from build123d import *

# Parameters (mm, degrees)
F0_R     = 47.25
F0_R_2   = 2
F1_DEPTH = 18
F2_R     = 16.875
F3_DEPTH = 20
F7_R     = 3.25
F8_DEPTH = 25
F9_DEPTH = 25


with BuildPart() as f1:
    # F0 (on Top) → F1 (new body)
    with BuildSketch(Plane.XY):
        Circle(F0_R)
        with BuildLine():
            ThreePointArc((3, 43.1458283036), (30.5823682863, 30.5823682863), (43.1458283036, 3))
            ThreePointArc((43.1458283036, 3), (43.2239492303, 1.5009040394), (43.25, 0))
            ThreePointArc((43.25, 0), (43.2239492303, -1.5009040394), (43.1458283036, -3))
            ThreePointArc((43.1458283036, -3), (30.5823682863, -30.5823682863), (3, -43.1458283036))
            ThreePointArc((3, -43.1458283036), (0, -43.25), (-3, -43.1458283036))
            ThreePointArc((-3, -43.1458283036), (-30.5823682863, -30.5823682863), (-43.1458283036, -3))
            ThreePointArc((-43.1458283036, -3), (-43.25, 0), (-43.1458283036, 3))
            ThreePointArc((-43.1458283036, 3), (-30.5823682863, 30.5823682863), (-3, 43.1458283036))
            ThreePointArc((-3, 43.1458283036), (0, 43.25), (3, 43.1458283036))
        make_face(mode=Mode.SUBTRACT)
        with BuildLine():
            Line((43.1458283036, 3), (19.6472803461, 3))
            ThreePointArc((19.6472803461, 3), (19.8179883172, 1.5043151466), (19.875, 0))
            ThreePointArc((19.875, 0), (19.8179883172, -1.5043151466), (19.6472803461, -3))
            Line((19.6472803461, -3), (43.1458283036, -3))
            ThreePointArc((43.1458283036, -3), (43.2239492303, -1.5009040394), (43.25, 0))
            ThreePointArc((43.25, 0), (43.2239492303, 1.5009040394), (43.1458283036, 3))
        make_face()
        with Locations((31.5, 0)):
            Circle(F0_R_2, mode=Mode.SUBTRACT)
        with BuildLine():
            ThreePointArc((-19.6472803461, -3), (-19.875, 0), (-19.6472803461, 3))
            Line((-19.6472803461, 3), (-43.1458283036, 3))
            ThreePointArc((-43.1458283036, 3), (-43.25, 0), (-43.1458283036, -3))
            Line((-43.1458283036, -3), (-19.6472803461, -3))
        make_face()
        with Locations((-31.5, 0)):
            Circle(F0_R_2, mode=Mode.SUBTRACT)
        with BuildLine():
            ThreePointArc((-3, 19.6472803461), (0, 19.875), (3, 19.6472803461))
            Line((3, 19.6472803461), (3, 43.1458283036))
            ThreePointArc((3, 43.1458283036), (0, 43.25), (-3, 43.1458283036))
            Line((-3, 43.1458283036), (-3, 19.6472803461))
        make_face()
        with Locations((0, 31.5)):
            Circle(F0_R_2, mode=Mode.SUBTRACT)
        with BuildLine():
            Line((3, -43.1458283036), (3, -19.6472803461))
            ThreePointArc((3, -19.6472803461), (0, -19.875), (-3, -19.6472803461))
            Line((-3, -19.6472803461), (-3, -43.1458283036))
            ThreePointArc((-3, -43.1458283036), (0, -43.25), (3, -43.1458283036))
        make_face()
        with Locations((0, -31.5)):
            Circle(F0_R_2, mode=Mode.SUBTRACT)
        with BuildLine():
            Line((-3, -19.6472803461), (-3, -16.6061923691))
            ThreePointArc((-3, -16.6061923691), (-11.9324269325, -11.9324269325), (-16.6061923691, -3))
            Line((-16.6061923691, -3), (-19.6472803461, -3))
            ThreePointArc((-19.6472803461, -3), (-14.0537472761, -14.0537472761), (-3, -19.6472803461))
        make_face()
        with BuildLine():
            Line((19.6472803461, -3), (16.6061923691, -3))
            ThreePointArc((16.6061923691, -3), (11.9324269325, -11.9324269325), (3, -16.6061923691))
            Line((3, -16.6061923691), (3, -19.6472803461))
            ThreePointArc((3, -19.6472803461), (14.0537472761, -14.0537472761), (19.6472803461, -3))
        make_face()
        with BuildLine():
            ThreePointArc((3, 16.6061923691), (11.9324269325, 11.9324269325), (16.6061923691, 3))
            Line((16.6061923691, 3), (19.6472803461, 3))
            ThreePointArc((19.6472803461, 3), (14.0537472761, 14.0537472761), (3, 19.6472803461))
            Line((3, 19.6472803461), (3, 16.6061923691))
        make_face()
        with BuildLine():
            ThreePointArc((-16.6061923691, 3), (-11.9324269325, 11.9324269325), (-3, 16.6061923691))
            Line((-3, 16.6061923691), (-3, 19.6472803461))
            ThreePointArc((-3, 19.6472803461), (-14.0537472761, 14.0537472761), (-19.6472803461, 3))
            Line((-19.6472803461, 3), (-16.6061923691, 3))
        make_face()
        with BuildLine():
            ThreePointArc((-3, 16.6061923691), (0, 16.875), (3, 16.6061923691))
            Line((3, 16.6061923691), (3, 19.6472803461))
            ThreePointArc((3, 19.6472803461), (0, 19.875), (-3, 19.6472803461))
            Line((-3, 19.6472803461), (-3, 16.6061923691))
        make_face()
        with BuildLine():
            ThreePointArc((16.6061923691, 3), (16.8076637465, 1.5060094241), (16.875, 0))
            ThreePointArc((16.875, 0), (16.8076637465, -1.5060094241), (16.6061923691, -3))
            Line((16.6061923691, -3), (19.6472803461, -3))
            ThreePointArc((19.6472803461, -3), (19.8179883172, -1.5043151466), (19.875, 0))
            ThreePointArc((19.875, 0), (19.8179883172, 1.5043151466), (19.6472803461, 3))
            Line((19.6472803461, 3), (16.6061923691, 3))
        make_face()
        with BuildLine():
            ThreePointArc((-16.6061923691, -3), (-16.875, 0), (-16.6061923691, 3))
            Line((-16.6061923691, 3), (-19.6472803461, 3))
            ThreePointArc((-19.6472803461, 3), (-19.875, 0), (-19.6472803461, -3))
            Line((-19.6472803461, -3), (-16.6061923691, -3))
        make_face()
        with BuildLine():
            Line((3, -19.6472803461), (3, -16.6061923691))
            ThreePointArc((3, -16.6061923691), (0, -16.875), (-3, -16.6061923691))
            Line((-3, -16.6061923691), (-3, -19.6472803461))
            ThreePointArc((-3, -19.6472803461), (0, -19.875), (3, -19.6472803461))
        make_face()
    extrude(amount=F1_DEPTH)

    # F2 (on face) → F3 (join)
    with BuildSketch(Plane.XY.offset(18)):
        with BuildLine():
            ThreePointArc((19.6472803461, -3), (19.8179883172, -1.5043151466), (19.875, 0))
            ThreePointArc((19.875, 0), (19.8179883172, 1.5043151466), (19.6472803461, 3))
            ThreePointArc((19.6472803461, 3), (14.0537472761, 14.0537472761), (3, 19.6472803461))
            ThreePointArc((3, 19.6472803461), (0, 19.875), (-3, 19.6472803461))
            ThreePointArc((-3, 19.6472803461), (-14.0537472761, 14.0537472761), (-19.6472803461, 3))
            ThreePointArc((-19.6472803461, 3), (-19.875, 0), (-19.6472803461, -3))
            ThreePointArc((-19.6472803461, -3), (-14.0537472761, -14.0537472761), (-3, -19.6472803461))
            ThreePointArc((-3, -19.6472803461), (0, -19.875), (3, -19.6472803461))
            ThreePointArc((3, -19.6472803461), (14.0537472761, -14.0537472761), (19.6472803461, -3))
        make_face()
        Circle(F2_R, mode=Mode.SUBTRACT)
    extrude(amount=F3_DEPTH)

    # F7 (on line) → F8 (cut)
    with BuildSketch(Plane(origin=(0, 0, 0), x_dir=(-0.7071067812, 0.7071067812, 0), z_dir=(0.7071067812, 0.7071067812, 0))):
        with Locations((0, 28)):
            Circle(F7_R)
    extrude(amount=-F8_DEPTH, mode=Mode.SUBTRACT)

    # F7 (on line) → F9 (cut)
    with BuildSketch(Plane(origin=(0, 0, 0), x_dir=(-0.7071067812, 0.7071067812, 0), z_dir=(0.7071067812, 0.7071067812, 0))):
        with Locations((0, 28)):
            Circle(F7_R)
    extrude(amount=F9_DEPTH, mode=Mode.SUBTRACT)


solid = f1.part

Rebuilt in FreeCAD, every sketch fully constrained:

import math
import FreeCAD as App
import Part
import Sketcher
from FreeCAD import Vector

doc = App.newDocument("Part")
body = doc.addObject("PartDesign::Body", "Body")

# Sketch on XY plane
sketch1 = doc.addObject("Sketcher::SketchObject", "Sketch")
body.addObject(sketch1)
sketch1.AttachmentSupport = (doc.XY_Plane, [""])
sketch1.MapMode = "FlatFace"
sketch1.addGeometry(Part.Circle(Vector(0, 0, 0), Vector(0, 0, 1), 47.2), False)
sketch1.addGeometry(Part.ArcOfCircle(Part.Circle(Vector(0, 0, 0), Vector(0, 0, 1), 19.9), math.radians(-171), math.radians(-99)), False)
sketch1.addGeometry(Part.LineSegment(Vector(-3, -19.6, 0), Vector(-3, -43.1, 0)), False)
sketch1.addGeometry(Part.ArcOfCircle(Part.Circle(Vector(0, 0, 0), Vector(0, 0, 1), 43.2), math.radians(-176), math.radians(-94)), False)
sketch1.addGeometry(Part.LineSegment(Vector(-43.1, -3, 0), Vector(-19.6, -3, 0)), False)
sketch1.addGeometry(Part.Circle(Vector(0, -31.5, 0), Vector(0, 0, 1), 2), False)
sketch1.addGeometry(Part.LineSegment(Vector(3, -43.1, 0), Vector(3, -19.6, 0)), False)
sketch1.addGeometry(Part.ArcOfCircle(Part.Circle(Vector(0, 0, 0), Vector(0, 0, 1), 19.9), math.radians(-81), math.radians(-9)), False)
sketch1.addGeometry(Part.LineSegment(Vector(19.6, -3, 0), Vector(43.1, -3, 0)), False)
sketch1.addGeometry(Part.ArcOfCircle(Part.Circle(Vector(0, 0, 0), Vector(0, 0, 1), 43.2), math.radians(-86), math.radians(-4)), False)
sketch1.addGeometry(Part.ArcOfCircle(Part.Circle(Vector(0, 0, 0), Vector(0, 0, 1), 16.9), math.radians(-80), math.radians(-10)), False)
sketch1.addGeometry(Part.ArcOfCircle(Part.Circle(Vector(0, 0, 0), Vector(0, 0, 1), 16.9), math.radians(-100), math.radians(-80)), False)
sketch1.addGeometry(Part.ArcOfCircle(Part.Circle(Vector(0, 0, 0), Vector(0, 0, 1), 16.9), math.radians(-170), math.radians(-100)), False)
sketch1.addGeometry(Part.ArcOfCircle(Part.Circle(Vector(0, 0, 0), Vector(0, 0, 1), 16.9), math.radians(170), math.radians(190)), False)
sketch1.addGeometry(Part.ArcOfCircle(Part.Circle(Vector(0, 0, 0), Vector(0, 0, 1), 16.9), math.radians(100), math.radians(170)), False)
sketch1.addGeometry(Part.ArcOfCircle(Part.Circle(Vector(0, 0, 0), Vector(0, 0, 1), 16.9), math.radians(80), math.radians(100)), False)
sketch1.addGeometry(Part.ArcOfCircle(Part.Circle(Vector(0, 0, 0), Vector(0, 0, 1), 16.9), math.radians(10), math.radians(80)), False)
sketch1.addGeometry(Part.ArcOfCircle(Part.Circle(Vector(0, 0, 0), Vector(0, 0, 1), 16.9), math.radians(0), math.radians(10.24)), False)
sketch1.addGeometry(Part.ArcOfCircle(Part.Circle(Vector(0, 0, 0), Vector(0, 0, 1), 16.9), math.radians(-10.24), math.radians(0)), False)
sketch1.addGeometry(Part.Circle(Vector(-31.5, 0, 0), Vector(0, 0, 1), 2), False)
sketch1.addGeometry(Part.ArcOfCircle(Part.Circle(Vector(0, 0, 0), Vector(0, 0, 1), 19.9), math.radians(99), math.radians(171)), False)
sketch1.addGeometry(Part.LineSegment(Vector(-19.6, 3, 0), Vector(-43.1, 3, 0)), False)
sketch1.addGeometry(Part.ArcOfCircle(Part.Circle(Vector(0, 0, 0), Vector(0, 0, 1), 43.2), math.radians(94), math.radians(176)), False)
sketch1.addGeometry(Part.LineSegment(Vector(-3, 43.1, 0), Vector(-3, 19.6, 0)), False)
sketch1.addGeometry(Part.Circle(Vector(31.5, 0, 0), Vector(0, 0, 1), 2), False)
sketch1.addGeometry(Part.Circle(Vector(0, 31.5, 0), Vector(0, 0, 1), 2), False)
sketch1.addGeometry(Part.LineSegment(Vector(43.1, 3, 0), Vector(19.6, 3, 0)), False)
sketch1.addGeometry(Part.ArcOfCircle(Part.Circle(Vector(0, 0, 0), Vector(0, 0, 1), 19.9), math.radians(9), math.radians(81)), False)
sketch1.addGeometry(Part.LineSegment(Vector(3, 19.6, 0), Vector(3, 43.1, 0)), False)
sketch1.addGeometry(Part.ArcOfCircle(Part.Circle(Vector(0, 0, 0), Vector(0, 0, 1), 43.2), math.radians(4), math.radians(86)), False)
sketch1.addConstraint(Sketcher.Constraint("Coincident", 1, 2, 2, 1))
sketch1.addConstraint(Sketcher.Constraint("Coincident", 2, 2, 3, 2))
sketch1.addConstraint(Sketcher.Constraint("Coincident", 3, 1, 4, 1))
sketch1.addConstraint(Sketcher.Constraint("Coincident", 4, 2, 1, 1))
sketch1.addConstraint(Sketcher.Constraint("Coincident", 6, 2, 7, 1))
sketch1.addConstraint(Sketcher.Constraint("Coincident", 7, 2, 8, 1))
sketch1.addConstraint(Sketcher.Constraint("Coincident", 8, 2, 9, 2))
sketch1.addConstraint(Sketcher.Constraint("Coincident", 9, 1, 6, 1))
sketch1.addConstraint(Sketcher.Constraint("Tangent", 10, 1, 11, 2))
sketch1.addConstraint(Sketcher.Constraint("Tangent", 11, 1, 12, 2))
sketch1.addConstraint(Sketcher.Constraint("Tangent", 12, 1, 13, 2))
sketch1.addConstraint(Sketcher.Constraint("Tangent", 13, 1, 14, 2))
sketch1.addConstraint(Sketcher.Constraint("Tangent", 14, 1, 15, 2))
sketch1.addConstraint(Sketcher.Constraint("Tangent", 15, 1, 16, 2))
sketch1.addConstraint(Sketcher.Constraint("Tangent", 16, 1, 17, 2))
sketch1.addConstraint(Sketcher.Constraint("Tangent", 17, 1, 18, 2))
sketch1.addConstraint(Sketcher.Constraint("Tangent", 18, 1, 10, 2))
sketch1.addConstraint(Sketcher.Constraint("Coincident", 20, 2, 21, 1))
sketch1.addConstraint(Sketcher.Constraint("Coincident", 21, 2, 22, 2))
sketch1.addConstraint(Sketcher.Constraint("Coincident", 22, 1, 23, 1))
sketch1.addConstraint(Sketcher.Constraint("Coincident", 23, 2, 20, 1))
sketch1.addConstraint(Sketcher.Constraint("Coincident", 26, 2, 27, 1))
sketch1.addConstraint(Sketcher.Constraint("Coincident", 27, 2, 28, 1))
sketch1.addConstraint(Sketcher.Constraint("Coincident", 28, 2, 29, 2))
sketch1.addConstraint(Sketcher.Constraint("Coincident", 29, 1, 26, 1))
sketch1.addConstraint(Sketcher.Constraint("Vertical", 2))
sketch1.addConstraint(Sketcher.Constraint("Horizontal", 4))
sketch1.addConstraint(Sketcher.Constraint("Vertical", 6))
sketch1.addConstraint(Sketcher.Constraint("Horizontal", 8))
sketch1.addConstraint(Sketcher.Constraint("Horizontal", 21))
sketch1.addConstraint(Sketcher.Constraint("Vertical", 23))
sketch1.addConstraint(Sketcher.Constraint("Horizontal", 26))
sketch1.addConstraint(Sketcher.Constraint("Vertical", 28))
sketch1.addConstraint(Sketcher.Constraint("Coincident", 0, 3, -1, 1))
sketch1.addConstraint(Sketcher.Constraint("Coincident", 1, 3, -1, 1))
sketch1.addConstraint(Sketcher.Constraint("Coincident", 3, 3, -1, 1))
sketch1.addConstraint(Sketcher.Constraint("Coincident", 7, 3, -1, 1))
sketch1.addConstraint(Sketcher.Constraint("Coincident", 9, 3, -1, 1))
sketch1.addConstraint(Sketcher.Constraint("Coincident", 10, 3, -1, 1))
sketch1.addConstraint(Sketcher.Constraint("Coincident", 12, 3, -1, 1))
sketch1.addConstraint(Sketcher.Constraint("Coincident", 14, 3, -1, 1))
sketch1.addConstraint(Sketcher.Constraint("Coincident", 16, 3, -1, 1))
sketch1.addConstraint(Sketcher.Constraint("Coincident", 20, 3, -1, 1))
sketch1.addConstraint(Sketcher.Constraint("Coincident", 22, 3, -1, 1))
sketch1.addConstraint(Sketcher.Constraint("Coincident", 27, 3, -1, 1))
sketch1.addConstraint(Sketcher.Constraint("Coincident", 29, 3, -1, 1))
sketch1.addConstraint(Sketcher.Constraint("Equal", 1, 7))
sketch1.addConstraint(Sketcher.Constraint("Equal", 3, 9))
sketch1.addConstraint(Sketcher.Constraint("Equal", 5, 19))
sketch1.addConstraint(Sketcher.Constraint("Equal", 7, 20))
sketch1.addConstraint(Sketcher.Constraint("Equal", 9, 22))
sketch1.addConstraint(Sketcher.Constraint("Equal", 19, 24))
sketch1.addConstraint(Sketcher.Constraint("Equal", 24, 25))
sketch1.addConstraint(Sketcher.Constraint("Equal", 20, 27))
sketch1.addConstraint(Sketcher.Constraint("Equal", 22, 29))
sketch1.addConstraint(Sketcher.Constraint("Symmetric", 19, 3, 24, 3, -1, 1))
sketch1.addConstraint(Sketcher.Constraint("Symmetric", 5, 3, 25, 3, -1, 1))
sketch1.addConstraint(Sketcher.Constraint("PointOnObject", 5, 3, -2))
sketch1.addConstraint(Sketcher.Constraint("PointOnObject", 19, 3, -1))
sketch1.addConstraint(Sketcher.Constraint("PointOnObject", 17, 1, -1))
sketch1.addConstraint(Sketcher.Constraint("Horizontal", 1, 2, 6, 2))
sketch1.addConstraint(Sketcher.Constraint("Horizontal", 4, 2, 7, 2))
sketch1.addConstraint(Sketcher.Constraint("Horizontal", 10, 1, 11, 1))
sketch1.addConstraint(Sketcher.Constraint("Horizontal", 8, 2, 12, 1))
sketch1.addConstraint(Sketcher.Constraint("Horizontal", 14, 1, 15, 1))
sketch1.addConstraint(Sketcher.Constraint("Horizontal", 13, 1, 16, 1))
sketch1.addConstraint(Sketcher.Constraint("Horizontal", 12, 1, 18, 1))
sketch1.addConstraint(Sketcher.Constraint("Horizontal", 16, 1, 20, 2))
sketch1.addConstraint(Sketcher.Constraint("Horizontal", 21, 2, 26, 2))
sketch1.addConstraint(Sketcher.Constraint("Horizontal", 23, 2, 27, 2))
sketch1.addConstraint(Sketcher.Constraint("Vertical", 9, 1, 10, 1))
sketch1.addConstraint(Sketcher.Constraint("Vertical", 12, 1, 13, 1))
sketch1.addConstraint(Sketcher.Constraint("Vertical", 11, 1, 14, 1))
sketch1.addConstraint(Sketcher.Constraint("Vertical", 14, 1, 22, 1))
sketch1.addConstraint(Sketcher.Constraint("Equal", 26, 2))
sketch1.addConstraint(Sketcher.Constraint("Diameter", 5, 4.0))
sketch1.addConstraint(Sketcher.Constraint("Diameter", 0, 94.5))
sketch1.addConstraint(Sketcher.Constraint("Radius", 3, 43.25))
sketch1.addConstraint(Sketcher.Constraint("DistanceX", 1, 2, -1, 1, 3.0))
sketch1.addConstraint(Sketcher.Constraint("Radius", 1, 19.875))
sketch1.addConstraint(Sketcher.Constraint("Radius", 10, 16.875))
sketch1.addConstraint(Sketcher.Constraint("DistanceY", 5, 3, -1, 1, 31.5))
sketch1.addConstraint(Sketcher.Constraint("DistanceX", 19, 3, -1, 1, 31.5))
pad1 = doc.addObject("PartDesign::Pad", "Pad")
body.addObject(pad1)
pad1.Profile = sketch1
pad1.Length = 18

# Sketch on XY plane
sketch2 = doc.addObject("Sketcher::SketchObject", "Sketch001")
body.addObject(sketch2)
sketch2.AttachmentSupport = (doc.XY_Plane, [""])
sketch2.MapMode = "FlatFace"
sketch2.AttachmentOffset = App.Placement(Vector(0, 0, 18), App.Rotation())
sketch2.addGeometry(Part.ArcOfCircle(Part.Circle(Vector(0, 0, 0), Vector(0, 0, 1), 19.9), math.radians(-8.68), math.radians(0)), False)
sketch2.addGeometry(Part.ArcOfCircle(Part.Circle(Vector(0, 0, 0), Vector(0, 0, 1), 19.9), math.radians(0), math.radians(8.68)), False)
sketch2.addGeometry(Part.ArcOfCircle(Part.Circle(Vector(0, 0, 0), Vector(0, 0, 1), 19.9), math.radians(9), math.radians(81)), False)
sketch2.addGeometry(Part.ArcOfCircle(Part.Circle(Vector(0, 0, 0), Vector(0, 0, 1), 19.9), math.radians(81.32), math.radians(98.68)), False)
sketch2.addGeometry(Part.ArcOfCircle(Part.Circle(Vector(0, 0, 0), Vector(0, 0, 1), 19.9), math.radians(99), math.radians(171)), False)
sketch2.addGeometry(Part.ArcOfCircle(Part.Circle(Vector(0, 0, 0), Vector(0, 0, 1), 19.9), math.radians(171.32), math.radians(188.68)), False)
sketch2.addGeometry(Part.ArcOfCircle(Part.Circle(Vector(0, 0, 0), Vector(0, 0, 1), 19.9), math.radians(-171), math.radians(-99)), False)
sketch2.addGeometry(Part.ArcOfCircle(Part.Circle(Vector(0, 0, 0), Vector(0, 0, 1), 19.9), math.radians(-98.68), math.radians(-81.32)), False)
sketch2.addGeometry(Part.ArcOfCircle(Part.Circle(Vector(0, 0, 0), Vector(0, 0, 1), 19.9), math.radians(-81), math.radians(-9)), False)
sketch2.addGeometry(Part.Circle(Vector(0, 0, 0), Vector(0, 0, 1), 16.9), False)
sketch2.addConstraint(Sketcher.Constraint("Tangent", 0, 2, 1, 1))
sketch2.addConstraint(Sketcher.Constraint("Tangent", 1, 2, 2, 1))
sketch2.addConstraint(Sketcher.Constraint("Tangent", 2, 2, 3, 1))
sketch2.addConstraint(Sketcher.Constraint("Tangent", 3, 2, 4, 1))
sketch2.addConstraint(Sketcher.Constraint("Tangent", 4, 2, 5, 1))
sketch2.addConstraint(Sketcher.Constraint("Tangent", 5, 2, 6, 1))
sketch2.addConstraint(Sketcher.Constraint("Tangent", 6, 2, 7, 1))
sketch2.addConstraint(Sketcher.Constraint("Tangent", 7, 2, 8, 1))
sketch2.addConstraint(Sketcher.Constraint("Tangent", 8, 2, 0, 1))
sketch2.addConstraint(Sketcher.Constraint("Coincident", 0, 3, -1, 1))
sketch2.addConstraint(Sketcher.Constraint("Coincident", 2, 3, -1, 1))
sketch2.addConstraint(Sketcher.Constraint("Coincident", 4, 3, -1, 1))
sketch2.addConstraint(Sketcher.Constraint("Coincident", 6, 3, -1, 1))
sketch2.addConstraint(Sketcher.Constraint("Coincident", 9, 3, -1, 1))
sketch2.addConstraint(Sketcher.Constraint("PointOnObject", 0, 2, -1))
sketch2.addConstraint(Sketcher.Constraint("Horizontal", 2, 2, 3, 2))
sketch2.addConstraint(Sketcher.Constraint("Horizontal", 1, 2, 4, 2))
sketch2.addConstraint(Sketcher.Constraint("Horizontal", 6, 2, 7, 2))
sketch2.addConstraint(Sketcher.Constraint("Horizontal", 5, 2, 8, 2))
sketch2.addConstraint(Sketcher.Constraint("Vertical", 4, 2, 5, 2))
sketch2.addConstraint(Sketcher.Constraint("Vertical", 3, 2, 6, 2))
sketch2.addConstraint(Sketcher.Constraint("Diameter", 9, 33.75))
sketch2.addConstraint(Sketcher.Constraint("DistanceY", -1, 1, 1, 2, 3.0))
sketch2.addConstraint(Sketcher.Constraint("DistanceX", -1, 1, 2, 2, 3.0))
sketch2.addConstraint(Sketcher.Constraint("Radius", 0, 19.875))
pad2 = doc.addObject("PartDesign::Pad", "Pad001")
body.addObject(pad2)
pad2.Profile = sketch2
pad2.Length = 20

# Sketch on an angled plane
sketch3 = doc.addObject("Sketcher::SketchObject", "Sketch002")
body.addObject(sketch3)
sketch3.Placement = App.Placement(Vector(0, 0, 0), App.Rotation(Vector(-0.707106781, 0.707106781, 0), Vector(0, 0, 0.999999999), Vector(0.707106781, 0.707106781, 0), "ZXY"))
sketch3.addGeometry(Part.Circle(Vector(0, 28, 0), Vector(0, 0, 1), 3.2), False)
sketch3.addConstraint(Sketcher.Constraint("PointOnObject", 0, 3, -2))
sketch3.addConstraint(Sketcher.Constraint("Diameter", 0, 6.5))
sketch3.addConstraint(Sketcher.Constraint("DistanceY", -1, 1, 0, 3, 28.0))
pocket1 = doc.addObject("PartDesign::Pocket", "Pocket")
body.addObject(pocket1)
pocket1.Profile = sketch3
pocket1.Length = 25

# Sketch on an angled plane
sketch4 = doc.addObject("Sketcher::SketchObject", "Sketch003")
body.addObject(sketch4)
sketch4.Placement = App.Placement(Vector(0, 0, 0), App.Rotation(Vector(-0.707106781, 0.707106781, 0), Vector(0, 0, 0.999999999), Vector(0.707106781, 0.707106781, 0), "ZXY"))
sketch4.addGeometry(Part.Circle(Vector(0, 28, 0), Vector(0, 0, 1), 3.2), False)
sketch4.addConstraint(Sketcher.Constraint("PointOnObject", 0, 3, -2))
sketch4.addConstraint(Sketcher.Constraint("Diameter", 0, 6.5))
sketch4.addConstraint(Sketcher.Constraint("DistanceY", -1, 1, 0, 3, 28.0))
pocket2 = doc.addObject("PartDesign::Pocket", "Pocket001")
body.addObject(pocket2)
pocket2.Profile = sketch4
pocket2.Length = 25
pocket2.Reversed = True

doc.recompute()
